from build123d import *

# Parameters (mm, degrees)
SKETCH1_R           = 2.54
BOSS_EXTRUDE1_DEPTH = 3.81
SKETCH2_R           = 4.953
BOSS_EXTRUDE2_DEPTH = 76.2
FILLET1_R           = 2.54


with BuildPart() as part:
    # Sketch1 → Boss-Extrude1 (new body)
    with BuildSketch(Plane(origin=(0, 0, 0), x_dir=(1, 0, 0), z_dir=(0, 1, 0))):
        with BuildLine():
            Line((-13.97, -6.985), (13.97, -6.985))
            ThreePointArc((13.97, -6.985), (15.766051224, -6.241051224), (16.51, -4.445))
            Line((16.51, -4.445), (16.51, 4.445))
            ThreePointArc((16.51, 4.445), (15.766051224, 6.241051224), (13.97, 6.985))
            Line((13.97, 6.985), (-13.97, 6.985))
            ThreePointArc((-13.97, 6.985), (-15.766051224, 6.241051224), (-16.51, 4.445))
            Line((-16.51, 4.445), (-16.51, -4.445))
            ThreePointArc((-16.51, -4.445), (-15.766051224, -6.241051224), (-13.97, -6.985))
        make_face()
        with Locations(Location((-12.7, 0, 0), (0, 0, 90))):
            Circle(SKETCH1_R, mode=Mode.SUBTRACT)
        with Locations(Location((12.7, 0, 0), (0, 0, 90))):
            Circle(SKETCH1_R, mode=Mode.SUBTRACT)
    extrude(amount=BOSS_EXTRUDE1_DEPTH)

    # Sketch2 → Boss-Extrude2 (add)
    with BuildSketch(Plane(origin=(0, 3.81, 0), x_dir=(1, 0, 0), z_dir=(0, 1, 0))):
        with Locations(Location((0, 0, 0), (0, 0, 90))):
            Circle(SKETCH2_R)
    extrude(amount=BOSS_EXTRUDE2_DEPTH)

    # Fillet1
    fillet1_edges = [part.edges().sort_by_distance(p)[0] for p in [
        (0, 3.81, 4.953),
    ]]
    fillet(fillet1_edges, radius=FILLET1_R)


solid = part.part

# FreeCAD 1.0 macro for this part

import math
import FreeCAD as App
import Part
import Sketcher
from FreeCAD import Vector
Q = App.Units.Quantity


def edges_at(feature, points):
    """Names of the edges that pass closest to the given points."""
    edges = feature.Shape.Edges
    near = lambda p: min(range(len(edges)), key=lambda i: edges[i].distToShape(Part.Vertex(*p))[0])
    return sorted({f"Edge{near(p) + 1}" for p in points})

doc = App.newDocument("Part")
body = doc.addObject("PartDesign::Body", "Body")

sketch1 = body.newObject("Sketcher::SketchObject", "Sketch")
sketch1.AttachmentSupport = (doc.getObject("XZ_Plane"), [""])
sketch1.MapMode = "FlatFace"
sketch1.addGeometry([
    Part.LineSegment(Vector(-14, 7, 0), Vector(14, 7, 0)),
    Part.ArcOfCircle(Part.Circle(Vector(14, 4.4, 0), Vector(0, 0, 1), 2.5), math.radians(0), math.radians(90)),
    Part.LineSegment(Vector(16.5, 4.4, 0), Vector(16.5, -4.4, 0)),
    Part.ArcOfCircle(Part.Circle(Vector(14, -4.4, 0), Vector(0, 0, 1), 2.5), math.radians(-90), math.radians(0)),
    Part.LineSegment(Vector(14, -7, 0), Vector(-14, -7, 0)),
    Part.ArcOfCircle(Part.Circle(Vector(-14, -4.4, 0), Vector(0, 0, 1), 2.5), math.radians(-180), math.radians(-90)),
    Part.LineSegment(Vector(-16.5, -4.4, 0), Vector(-16.5, 4.4, 0)),
    Part.ArcOfCircle(Part.Circle(Vector(-14, 4.4, 0), Vector(0, 0, 1), 2.5), math.radians(90), math.radians(180)),
    Part.Circle(Vector(-12.7, 0, 0), Vector(0, 0, 1), 2.5),
    Part.Circle(Vector(12.7, 0, 0), Vector(0, 0, 1), 2.5),
], False)
sketch1.addConstraint([
    Sketcher.Constraint("Tangent", 0, 2, 1, 2),
    Sketcher.Constraint("Tangent", 1, 1, 2, 1),
    Sketcher.Constraint("Tangent", 2, 2, 3, 2),
    Sketcher.Constraint("Tangent", 3, 1, 4, 1),
    Sketcher.Constraint("Tangent", 4, 2, 5, 2),
    Sketcher.Constraint("Tangent", 5, 1, 6, 1),
    Sketcher.Constraint("Tangent", 6, 2, 7, 2),
    Sketcher.Constraint("Tangent", 7, 1, 0, 1),
    Sketcher.Constraint("Horizontal", 0),
    Sketcher.Constraint("Vertical", 2),
    Sketcher.Constraint("Horizontal", 4),
    Sketcher.Constraint("Vertical", 6),
    Sketcher.Constraint("Equal", 1, 3),
    Sketcher.Constraint("Equal", 3, 5),
    Sketcher.Constraint("Equal", 5, 7),
    Sketcher.Constraint("Equal", 7, 8),
    Sketcher.Constraint("Equal", 8, 9),
    Sketcher.Constraint("Symmetric", 1, 3, 5, 3, -1, 1),
    Sketcher.Constraint("Symmetric", 8, 3, 9, 3, -1, 1),
    Sketcher.Constraint("PointOnObject", 8, 3, -1),
    Sketcher.Constraint("Diameter", 8, Q("0.2 in")),
    Sketcher.Constraint("DistanceX", 0, 1, 0, 2, Q("1.1 in")),
    Sketcher.Constraint("DistanceX", 8, 3, 9, 3, Q("1 in")),
    Sketcher.Constraint("DistanceY", 2, 2, 2, 1, Q("0.35 in")),
])
pad1 = body.newObject("PartDesign::Pad", "Pad")
pad1.Profile = sketch1
pad1.Length = Q("0.15 in")
pad1.Reversed = True

sketch2 = body.newObject("Sketcher::SketchObject", "Sketch001")
sketch2.AttachmentSupport = (doc.getObject("XZ_Plane"), [""])
sketch2.MapMode = "FlatFace"
sketch2.AttachmentOffset = App.Placement(Vector(0, 0, -0.15 * 25.4), App.Rotation())
sketch2.addGeometry(Part.Circle(Vector(0, 0, 0), Vector(0, 0, 1), 5), False)
sketch2.addConstraint([
    Sketcher.Constraint("Coincident", 0, 3, -1, 1),
    Sketcher.Constraint("Diameter", 0, Q("0.39 in")),
])
pad2 = body.newObject("PartDesign::Pad", "Pad001")
pad2.Profile = sketch2
pad2.Length = Q("3 in")
pad2.Reversed = True
doc.recompute()

fillet = body.newObject("PartDesign::Fillet", "Fillet")
fillet.Base = (pad2, edges_at(pad2, [(0, 3.81, 4.953)]))
fillet.Radius = Q("0.1 in")

doc.recompute()
